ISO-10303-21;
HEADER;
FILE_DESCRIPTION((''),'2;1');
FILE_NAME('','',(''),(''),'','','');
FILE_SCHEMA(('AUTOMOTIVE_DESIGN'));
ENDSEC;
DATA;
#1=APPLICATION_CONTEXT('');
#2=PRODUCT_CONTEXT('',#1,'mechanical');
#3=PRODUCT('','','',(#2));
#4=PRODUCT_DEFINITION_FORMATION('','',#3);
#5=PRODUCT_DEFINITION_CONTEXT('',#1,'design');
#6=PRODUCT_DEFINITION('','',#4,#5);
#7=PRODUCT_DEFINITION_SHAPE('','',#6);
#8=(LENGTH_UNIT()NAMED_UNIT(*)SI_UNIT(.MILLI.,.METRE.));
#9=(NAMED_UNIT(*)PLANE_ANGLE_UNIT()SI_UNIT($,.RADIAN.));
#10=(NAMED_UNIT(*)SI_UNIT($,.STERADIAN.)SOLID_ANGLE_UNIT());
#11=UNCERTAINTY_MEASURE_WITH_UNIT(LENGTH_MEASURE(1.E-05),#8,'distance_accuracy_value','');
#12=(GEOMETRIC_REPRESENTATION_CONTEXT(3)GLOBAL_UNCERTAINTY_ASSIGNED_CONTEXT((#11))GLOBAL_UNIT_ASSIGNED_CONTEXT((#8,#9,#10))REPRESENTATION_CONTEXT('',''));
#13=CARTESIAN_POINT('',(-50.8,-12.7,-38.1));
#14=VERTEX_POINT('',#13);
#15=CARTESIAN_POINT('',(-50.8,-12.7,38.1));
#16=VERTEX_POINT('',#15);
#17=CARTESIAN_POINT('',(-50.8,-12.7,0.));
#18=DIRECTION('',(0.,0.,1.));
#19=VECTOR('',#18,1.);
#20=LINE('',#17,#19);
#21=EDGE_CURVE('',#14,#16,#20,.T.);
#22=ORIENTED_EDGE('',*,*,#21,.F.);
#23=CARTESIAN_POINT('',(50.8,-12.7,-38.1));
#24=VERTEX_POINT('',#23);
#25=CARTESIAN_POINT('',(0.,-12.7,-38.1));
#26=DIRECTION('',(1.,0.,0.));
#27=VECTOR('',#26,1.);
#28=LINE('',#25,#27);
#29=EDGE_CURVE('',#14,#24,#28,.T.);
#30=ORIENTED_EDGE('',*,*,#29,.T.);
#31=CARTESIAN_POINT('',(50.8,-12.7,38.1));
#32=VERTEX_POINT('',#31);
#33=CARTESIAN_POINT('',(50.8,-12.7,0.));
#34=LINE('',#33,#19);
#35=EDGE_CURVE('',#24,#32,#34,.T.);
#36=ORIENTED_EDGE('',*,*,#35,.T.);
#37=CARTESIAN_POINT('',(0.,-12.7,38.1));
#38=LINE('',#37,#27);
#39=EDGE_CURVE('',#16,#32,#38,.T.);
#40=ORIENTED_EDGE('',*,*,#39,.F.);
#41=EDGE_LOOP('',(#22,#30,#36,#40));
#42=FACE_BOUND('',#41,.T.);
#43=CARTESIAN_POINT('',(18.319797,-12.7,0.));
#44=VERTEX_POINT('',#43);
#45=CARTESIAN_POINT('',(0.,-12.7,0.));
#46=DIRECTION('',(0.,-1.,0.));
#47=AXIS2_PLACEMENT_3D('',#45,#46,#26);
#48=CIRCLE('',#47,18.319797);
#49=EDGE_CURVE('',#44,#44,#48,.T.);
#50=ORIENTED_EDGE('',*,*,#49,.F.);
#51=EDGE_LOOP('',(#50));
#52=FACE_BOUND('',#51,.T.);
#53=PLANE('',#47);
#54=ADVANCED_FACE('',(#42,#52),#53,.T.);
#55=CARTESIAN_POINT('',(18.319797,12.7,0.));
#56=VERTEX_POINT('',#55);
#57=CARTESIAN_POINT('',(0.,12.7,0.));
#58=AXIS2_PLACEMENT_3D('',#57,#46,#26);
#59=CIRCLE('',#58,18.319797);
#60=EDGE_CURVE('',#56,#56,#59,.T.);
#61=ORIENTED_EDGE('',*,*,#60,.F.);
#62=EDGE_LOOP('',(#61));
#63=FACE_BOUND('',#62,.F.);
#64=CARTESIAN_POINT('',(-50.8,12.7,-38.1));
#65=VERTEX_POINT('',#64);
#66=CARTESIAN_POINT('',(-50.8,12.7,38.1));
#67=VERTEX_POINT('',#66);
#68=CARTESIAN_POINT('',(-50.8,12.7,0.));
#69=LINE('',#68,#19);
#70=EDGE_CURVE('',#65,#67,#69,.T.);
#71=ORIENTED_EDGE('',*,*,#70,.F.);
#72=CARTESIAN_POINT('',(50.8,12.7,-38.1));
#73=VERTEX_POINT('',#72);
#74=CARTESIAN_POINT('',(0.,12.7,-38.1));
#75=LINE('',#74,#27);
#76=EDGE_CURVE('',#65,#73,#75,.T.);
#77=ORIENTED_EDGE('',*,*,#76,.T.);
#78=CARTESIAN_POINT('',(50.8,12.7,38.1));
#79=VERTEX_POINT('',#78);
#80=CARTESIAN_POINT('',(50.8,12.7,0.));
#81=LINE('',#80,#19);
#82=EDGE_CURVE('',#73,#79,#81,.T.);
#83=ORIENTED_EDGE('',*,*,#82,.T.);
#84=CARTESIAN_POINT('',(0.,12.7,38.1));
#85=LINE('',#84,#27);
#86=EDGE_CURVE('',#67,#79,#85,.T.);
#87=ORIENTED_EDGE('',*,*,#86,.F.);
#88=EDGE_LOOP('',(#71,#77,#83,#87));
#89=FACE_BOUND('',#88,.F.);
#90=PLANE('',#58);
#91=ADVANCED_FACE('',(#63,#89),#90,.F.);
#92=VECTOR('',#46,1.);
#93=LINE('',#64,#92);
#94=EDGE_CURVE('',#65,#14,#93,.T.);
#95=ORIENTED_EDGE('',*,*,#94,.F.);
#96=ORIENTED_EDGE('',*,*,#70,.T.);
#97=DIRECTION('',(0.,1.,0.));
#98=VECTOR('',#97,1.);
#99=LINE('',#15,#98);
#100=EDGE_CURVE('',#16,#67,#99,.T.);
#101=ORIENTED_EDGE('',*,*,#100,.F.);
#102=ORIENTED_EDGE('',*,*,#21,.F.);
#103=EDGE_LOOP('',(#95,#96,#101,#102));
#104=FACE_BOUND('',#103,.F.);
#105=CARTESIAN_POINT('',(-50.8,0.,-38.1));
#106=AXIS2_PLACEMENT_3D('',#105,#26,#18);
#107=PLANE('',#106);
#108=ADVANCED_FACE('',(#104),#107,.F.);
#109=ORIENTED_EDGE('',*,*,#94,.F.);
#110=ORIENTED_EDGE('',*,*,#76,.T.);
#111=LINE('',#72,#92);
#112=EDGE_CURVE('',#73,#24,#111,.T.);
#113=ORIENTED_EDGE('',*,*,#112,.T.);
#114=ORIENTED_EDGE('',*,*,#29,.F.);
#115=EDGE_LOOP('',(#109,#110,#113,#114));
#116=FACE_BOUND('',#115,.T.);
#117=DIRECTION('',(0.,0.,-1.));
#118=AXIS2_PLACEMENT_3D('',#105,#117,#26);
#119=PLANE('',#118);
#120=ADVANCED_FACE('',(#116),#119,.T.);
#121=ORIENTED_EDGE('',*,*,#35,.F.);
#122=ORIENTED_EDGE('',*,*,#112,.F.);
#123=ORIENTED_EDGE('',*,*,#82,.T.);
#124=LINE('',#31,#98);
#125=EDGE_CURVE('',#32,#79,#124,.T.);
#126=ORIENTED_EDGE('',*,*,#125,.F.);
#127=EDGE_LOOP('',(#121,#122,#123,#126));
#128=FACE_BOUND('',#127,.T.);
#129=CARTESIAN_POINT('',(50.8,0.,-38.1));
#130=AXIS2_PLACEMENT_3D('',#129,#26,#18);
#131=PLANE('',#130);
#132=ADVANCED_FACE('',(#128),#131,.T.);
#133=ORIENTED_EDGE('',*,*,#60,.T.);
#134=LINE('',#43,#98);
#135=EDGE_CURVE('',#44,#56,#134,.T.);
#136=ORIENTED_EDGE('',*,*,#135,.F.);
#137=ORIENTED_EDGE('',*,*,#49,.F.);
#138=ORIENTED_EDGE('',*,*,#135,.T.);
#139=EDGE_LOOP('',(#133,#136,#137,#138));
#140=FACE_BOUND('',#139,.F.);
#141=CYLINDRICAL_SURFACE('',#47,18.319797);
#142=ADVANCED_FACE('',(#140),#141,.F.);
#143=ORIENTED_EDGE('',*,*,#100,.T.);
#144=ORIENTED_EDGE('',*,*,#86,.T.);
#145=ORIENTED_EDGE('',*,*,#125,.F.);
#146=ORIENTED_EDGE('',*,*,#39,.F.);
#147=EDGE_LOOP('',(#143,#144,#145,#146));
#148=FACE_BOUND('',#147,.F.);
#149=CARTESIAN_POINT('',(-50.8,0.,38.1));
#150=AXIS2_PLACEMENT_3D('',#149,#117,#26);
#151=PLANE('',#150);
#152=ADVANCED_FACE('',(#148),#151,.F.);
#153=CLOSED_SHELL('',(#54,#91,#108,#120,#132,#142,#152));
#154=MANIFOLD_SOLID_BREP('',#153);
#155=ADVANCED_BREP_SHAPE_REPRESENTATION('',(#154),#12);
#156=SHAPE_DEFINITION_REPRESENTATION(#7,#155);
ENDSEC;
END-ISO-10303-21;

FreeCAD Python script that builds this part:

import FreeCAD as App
import Part
import Sketcher

V = App.Vector
Q = App.Units.Quantity

doc = App.newDocument("Part")
body = doc.addObject("PartDesign::Body", "Body")

# Sketch on XZ plane
sketch1 = doc.addObject("Sketcher::SketchObject", "Sketch")
body.addObject(sketch1)
sketch1.AttachmentSupport = (doc.XZ_Plane, [""])
sketch1.MapMode = "FlatFace"
sketch1.addGeometry(Part.LineSegment(V(-51, 38, 0), V(-51, -38, 0)), False)
sketch1.addGeometry(Part.LineSegment(V(-51, -38, 0), V(51, -38, 0)), False)
sketch1.addGeometry(Part.LineSegment(V(51, -38, 0), V(51, 38, 0)), False)
sketch1.addGeometry(Part.LineSegment(V(51, 38, 0), V(-51, 38, 0)), False)
sketch1.addConstraint(Sketcher.Constraint("Coincident", 0, 2, 1, 1))
sketch1.addConstraint(Sketcher.Constraint("Coincident", 1, 2, 2, 1))
sketch1.addConstraint(Sketcher.Constraint("Coincident", 2, 2, 3, 1))
sketch1.addConstraint(Sketcher.Constraint("Coincident", 3, 2, 0, 1))
sketch1.addConstraint(Sketcher.Constraint("Vertical", 0))
sketch1.addConstraint(Sketcher.Constraint("Horizontal", 1))
sketch1.addConstraint(Sketcher.Constraint("Vertical", 2))
sketch1.addConstraint(Sketcher.Constraint("Horizontal", 3))
sketch1.addConstraint(Sketcher.Constraint("Symmetric", 0, 2, 2, 2, -1, 1))
sketch1.addConstraint(Sketcher.Constraint("DistanceX", 1, 1, 1, 2, Q("4 in")))
sketch1.addConstraint(Sketcher.Constraint("DistanceY", 0, 2, 0, 1, Q("3 in")))
pad1 = doc.addObject("PartDesign::Pad", "Pad")
body.addObject(pad1)
pad1.Profile = sketch1
pad1.Length = Q("1 in")
pad1.Midplane = True

# Sketch on XZ plane
sketch2 = doc.addObject("Sketcher::SketchObject", "Sketch001")
body.addObject(sketch2)
sketch2.AttachmentSupport = (doc.XZ_Plane, [""])
sketch2.MapMode = "FlatFace"
sketch2.AttachmentOffset = App.Placement(V(0, 0, 0.5 * 25.4), App.Rotation())
sketch2.addGeometry(Part.Circle(V(0, 0, 0), V(0, 0, 1), 18), False)
sketch2.addConstraint(Sketcher.Constraint("Coincident", 0, 3, -1, 1))
sketch2.addConstraint(Sketcher.Constraint("Diameter", 0, Q("36.639594 mm")))
pocket1 = doc.addObject("PartDesign::Pocket", "Pocket")
body.addObject(pocket1)
pocket1.Profile = sketch2
pocket1.Type = "ThroughAll"

doc.recompute()
